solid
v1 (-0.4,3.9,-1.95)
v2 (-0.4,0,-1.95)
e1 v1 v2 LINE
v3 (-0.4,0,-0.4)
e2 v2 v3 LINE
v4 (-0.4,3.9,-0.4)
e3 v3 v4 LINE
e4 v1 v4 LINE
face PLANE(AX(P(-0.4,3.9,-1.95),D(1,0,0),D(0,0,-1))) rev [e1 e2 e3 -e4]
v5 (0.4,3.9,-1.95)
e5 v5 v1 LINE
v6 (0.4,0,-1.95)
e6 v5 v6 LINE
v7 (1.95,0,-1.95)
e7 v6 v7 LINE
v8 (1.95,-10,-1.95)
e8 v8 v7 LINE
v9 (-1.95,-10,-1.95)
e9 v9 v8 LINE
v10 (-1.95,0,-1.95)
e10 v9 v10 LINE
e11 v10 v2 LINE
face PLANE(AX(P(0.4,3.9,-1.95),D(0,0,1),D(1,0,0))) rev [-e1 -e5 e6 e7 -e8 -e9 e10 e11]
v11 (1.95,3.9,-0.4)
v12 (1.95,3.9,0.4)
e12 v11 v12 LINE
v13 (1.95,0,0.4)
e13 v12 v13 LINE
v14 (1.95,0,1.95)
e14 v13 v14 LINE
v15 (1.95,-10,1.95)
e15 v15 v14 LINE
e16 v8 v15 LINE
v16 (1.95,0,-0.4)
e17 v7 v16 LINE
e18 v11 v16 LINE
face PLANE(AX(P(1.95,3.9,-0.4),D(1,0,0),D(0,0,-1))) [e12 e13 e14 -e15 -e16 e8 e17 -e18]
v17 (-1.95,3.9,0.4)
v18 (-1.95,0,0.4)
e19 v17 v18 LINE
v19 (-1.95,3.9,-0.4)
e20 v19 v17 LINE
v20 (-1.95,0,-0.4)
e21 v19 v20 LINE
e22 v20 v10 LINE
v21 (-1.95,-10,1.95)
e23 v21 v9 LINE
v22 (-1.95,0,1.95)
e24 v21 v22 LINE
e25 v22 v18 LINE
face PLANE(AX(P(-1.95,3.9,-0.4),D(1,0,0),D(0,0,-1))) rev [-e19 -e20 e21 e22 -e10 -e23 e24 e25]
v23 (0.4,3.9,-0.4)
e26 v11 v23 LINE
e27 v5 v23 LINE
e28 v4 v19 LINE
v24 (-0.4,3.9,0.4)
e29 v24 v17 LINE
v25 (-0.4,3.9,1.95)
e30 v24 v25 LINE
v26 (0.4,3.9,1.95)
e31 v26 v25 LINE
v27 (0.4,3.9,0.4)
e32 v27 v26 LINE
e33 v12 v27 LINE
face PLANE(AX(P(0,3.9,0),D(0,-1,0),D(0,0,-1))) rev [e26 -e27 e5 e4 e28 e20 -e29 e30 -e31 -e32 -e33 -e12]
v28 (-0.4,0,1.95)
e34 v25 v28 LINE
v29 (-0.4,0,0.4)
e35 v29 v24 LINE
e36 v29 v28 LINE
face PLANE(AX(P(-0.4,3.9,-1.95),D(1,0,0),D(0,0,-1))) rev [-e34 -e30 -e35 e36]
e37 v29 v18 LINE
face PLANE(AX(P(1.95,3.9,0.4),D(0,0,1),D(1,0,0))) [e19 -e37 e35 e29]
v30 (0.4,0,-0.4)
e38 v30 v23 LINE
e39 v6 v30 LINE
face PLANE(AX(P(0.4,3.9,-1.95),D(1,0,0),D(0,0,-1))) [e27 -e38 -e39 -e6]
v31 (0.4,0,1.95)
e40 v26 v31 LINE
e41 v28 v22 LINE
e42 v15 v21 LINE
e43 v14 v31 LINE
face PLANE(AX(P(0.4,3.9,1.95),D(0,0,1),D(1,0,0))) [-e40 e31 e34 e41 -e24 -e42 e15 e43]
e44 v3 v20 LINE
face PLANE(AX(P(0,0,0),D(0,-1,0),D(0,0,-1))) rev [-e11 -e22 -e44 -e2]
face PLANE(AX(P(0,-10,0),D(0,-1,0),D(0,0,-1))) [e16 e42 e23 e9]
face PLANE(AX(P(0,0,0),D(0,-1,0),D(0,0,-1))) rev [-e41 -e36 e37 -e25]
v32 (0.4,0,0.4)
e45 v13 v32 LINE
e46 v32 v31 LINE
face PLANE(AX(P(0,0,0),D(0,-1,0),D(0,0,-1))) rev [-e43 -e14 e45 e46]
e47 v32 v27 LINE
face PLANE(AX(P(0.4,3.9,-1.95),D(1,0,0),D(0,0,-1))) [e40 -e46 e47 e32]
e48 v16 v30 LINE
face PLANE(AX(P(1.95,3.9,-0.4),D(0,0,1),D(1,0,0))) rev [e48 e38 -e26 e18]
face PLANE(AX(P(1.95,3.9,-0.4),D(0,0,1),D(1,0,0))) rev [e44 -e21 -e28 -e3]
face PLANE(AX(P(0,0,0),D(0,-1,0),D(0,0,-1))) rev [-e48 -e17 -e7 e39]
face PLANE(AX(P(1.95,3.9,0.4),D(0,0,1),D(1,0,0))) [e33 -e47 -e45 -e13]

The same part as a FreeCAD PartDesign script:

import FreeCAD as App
import Part
import Sketcher

doc = App.newDocument("Part")
params = doc.addObject("Spreadsheet::Sheet", "Params")
for row, (alias, value) in enumerate([
    ("sketch1_width", "0.8 mm"),
    ("sketch1_width2", "1.55 mm"),
    ("pad1_length", "3.9 mm"),
    ("sketch2_width", "3.9 mm"),
    ("pad2_length", "10 mm"),
], start=1):
    params.set(f"A{row}", alias)
    params.set(f"B{row}", "=" + value)
    params.setAlias(f"B{row}", alias)

body = doc.addObject("PartDesign::Body", "Body")

sketch1 = body.newObject("Sketcher::SketchObject", "Sketch")
sketch1.AttachmentSupport = (doc.getObject("XZ_Plane"), [""])
sketch1.MapMode = "FlatFace"
sketch1.addGeometry(Part.LineSegment(App.Vector(0.4, -0.4, 0), App.Vector(0.4, -1.9, 0)), False)
sketch1.addGeometry(Part.LineSegment(App.Vector(0.4, -1.9, 0), App.Vector(-0.4, -1.9, 0)), False)
sketch1.addGeometry(Part.LineSegment(App.Vector(-0.4, -1.9, 0), App.Vector(-0.4, -0.4, 0)), False)
sketch1.addGeometry(Part.LineSegment(App.Vector(-0.4, -0.4, 0), App.Vector(-1.9, -0.4, 0)), False)
sketch1.addGeometry(Part.LineSegment(App.Vector(-1.9, -0.4, 0), App.Vector(-1.9, 0.4, 0)), False)
sketch1.addGeometry(Part.LineSegment(App.Vector(-1.9, 0.4, 0), App.Vector(-0.4, 0.4, 0)), False)
sketch1.addGeometry(Part.LineSegment(App.Vector(-0.4, 0.4, 0), App.Vector(-0.4, 1.9, 0)), False)
sketch1.addGeometry(Part.LineSegment(App.Vector(-0.4, 1.9, 0), App.Vector(0.4, 1.9, 0)), False)
sketch1.addGeometry(Part.LineSegment(App.Vector(0.4, 1.9, 0), App.Vector(0.4, 0.4, 0)), False)
sketch1.addGeometry(Part.LineSegment(App.Vector(0.4, 0.4, 0), App.Vector(1.9, 0.4, 0)), False)
sketch1.addGeometry(Part.LineSegment(App.Vector(1.9, 0.4, 0), App.Vector(1.9, -0.4, 0)), False)
sketch1.addGeometry(Part.LineSegment(App.Vector(1.9, -0.4, 0), App.Vector(0.4, -0.4, 0)), False)
sketch1.addConstraint(Sketcher.Constraint("Coincident", 0, 2, 1, 1))
sketch1.addConstraint(Sketcher.Constraint("Coincident", 1, 2, 2, 1))
sketch1.addConstraint(Sketcher.Constraint("Coincident", 2, 2, 3, 1))
sketch1.addConstraint(Sketcher.Constraint("Coincident", 3, 2, 4, 1))
sketch1.addConstraint(Sketcher.Constraint("Coincident", 4, 2, 5, 1))
sketch1.addConstraint(Sketcher.Constraint("Coincident", 5, 2, 6, 1))
sketch1.addConstraint(Sketcher.Constraint("Coincident", 6, 2, 7, 1))
sketch1.addConstraint(Sketcher.Constraint("Coincident", 7, 2, 8, 1))
sketch1.addConstraint(Sketcher.Constraint("Coincident", 8, 2, 9, 1))
sketch1.addConstraint(Sketcher.Constraint("Coincident", 9, 2, 10, 1))
sketch1.addConstraint(Sketcher.Constraint("Coincident", 10, 2, 11, 1))
sketch1.addConstraint(Sketcher.Constraint("Coincident", 11, 2, 0, 1))
sketch1.addConstraint(Sketcher.Constraint("Vertical", 0))
sketch1.addConstraint(Sketcher.Constraint("Horizontal", 1))
sketch1.addConstraint(Sketcher.Constraint("Vertical", 2))
sketch1.addConstraint(Sketcher.Constraint("Horizontal", 3))
sketch1.addConstraint(Sketcher.Constraint("Vertical", 4))
sketch1.addConstraint(Sketcher.Constraint("Horizontal", 5))
sketch1.addConstraint(Sketcher.Constraint("Vertical", 6))
sketch1.addConstraint(Sketcher.Constraint("Horizontal", 7))
sketch1.addConstraint(Sketcher.Constraint("Vertical", 8))
sketch1.addConstraint(Sketcher.Constraint("Horizontal", 9))
sketch1.addConstraint(Sketcher.Constraint("Vertical", 10))
sketch1.addConstraint(Sketcher.Constraint("Horizontal", 11))
sketch1.addConstraint(Sketcher.Constraint("Symmetric", 0, 2, 6, 2, -1, 1))
sketch1.addConstraint(Sketcher.Constraint("Symmetric", 2, 2, 8, 2, -1, 1))
sketch1.addConstraint(Sketcher.Constraint("Symmetric", 4, 2, 10, 2, -1, 1))
sketch1.addConstraint(Sketcher.Constraint("Symmetric", 5, 2, 8, 2, -2))
sketch1.addConstraint(Sketcher.Constraint("Equal", 11, 0))
sketch1.addConstraint(Sketcher.Constraint("Equal", 7, 4))
sketch1.addConstraint(Sketcher.Constraint("DistanceX", 1, 2, 1, 1, 0.8))
sketch1.addConstraint(Sketcher.Constraint("DistanceX", 3, 2, 3, 1, 1.55))
sketch1.setExpression("Constraints[30]", "Params.sketch1_width")
sketch1.setExpression("Constraints[31]", "Params.sketch1_width2")
pad1 = body.newObject("PartDesign::Pad", "Pad")
pad1.Profile = sketch1
pad1.setExpression("Length", "Params.pad1_length")
pad1.Reversed = True

sketch2 = body.newObject("Sketcher::SketchObject", "Sketch001")
sketch2.AttachmentSupport = (doc.getObject("XZ_Plane"), [""])
sketch2.MapMode = "FlatFace"
sketch2.addGeometry(Part.LineSegment(App.Vector(-1.9, 1.9, 0), App.Vector(-1.9, -1.9, 0)), False)
sketch2.addGeometry(Part.LineSegment(App.Vector(-1.9, -1.9, 0), App.Vector(1.9, -1.9, 0)), False)
sketch2.addGeometry(Part.LineSegment(App.Vector(1.9, -1.9, 0), App.Vector(1.9, 1.9, 0)), False)
sketch2.addGeometry(Part.LineSegment(App.Vector(1.9, 1.9, 0), App.Vector(-1.9, 1.9, 0)), False)
sketch2.addConstraint(Sketcher.Constraint("Coincident", 0, 2, 1, 1))
sketch2.addConstraint(Sketcher.Constraint("Coincident", 1, 2, 2, 1))
sketch2.addConstraint(Sketcher.Constraint("Coincident", 2, 2, 3, 1))
sketch2.addConstraint(Sketcher.Constraint("Coincident", 3, 2, 0, 1))
sketch2.addConstraint(Sketcher.Constraint("Vertical", 0))
sketch2.addConstraint(Sketcher.Constraint("Horizontal", 1))
sketch2.addConstraint(Sketcher.Constraint("Vertical", 2))
sketch2.addConstraint(Sketcher.Constraint("Horizontal", 3))
sketch2.addConstraint(Sketcher.Constraint("Symmetric", 0, 2, 2, 2, -1, 1))
sketch2.addConstraint(Sketcher.Constraint("Equal", 3, 0))
sketch2.addConstraint(Sketcher.Constraint("DistanceX", 1, 1, 1, 2, 3.9))
sketch2.setExpression("Constraints[10]", "Params.sketch2_width")
pad2 = body.newObject("PartDesign::Pad", "Pad001")
pad2.Profile = sketch2
pad2.setExpression("Length", "Params.pad2_length")

doc.recompute()
